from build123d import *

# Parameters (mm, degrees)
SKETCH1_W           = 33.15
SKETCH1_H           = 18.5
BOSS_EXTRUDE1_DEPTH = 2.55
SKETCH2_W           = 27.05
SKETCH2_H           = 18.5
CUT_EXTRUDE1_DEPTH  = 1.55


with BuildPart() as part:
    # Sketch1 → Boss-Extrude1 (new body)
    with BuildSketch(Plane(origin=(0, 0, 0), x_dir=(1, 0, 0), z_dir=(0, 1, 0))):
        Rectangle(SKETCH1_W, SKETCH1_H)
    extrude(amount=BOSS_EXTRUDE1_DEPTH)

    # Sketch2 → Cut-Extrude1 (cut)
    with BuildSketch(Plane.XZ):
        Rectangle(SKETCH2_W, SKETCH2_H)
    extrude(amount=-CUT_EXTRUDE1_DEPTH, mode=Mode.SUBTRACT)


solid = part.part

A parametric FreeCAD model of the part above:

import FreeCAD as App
import Part
import Sketcher
Q = App.Units.Quantity

doc = App.newDocument("Part")
body = doc.addObject("PartDesign::Body", "Body")

sketch1 = body.newObject("Sketcher::SketchObject", "Sketch")
sketch1.AttachmentSupport = (doc.getObject("XZ_Plane"), [""])
sketch1.MapMode = "FlatFace"
sketch1.addGeometry([
    Part.LineSegment(App.Vector(-17, -9, 0), App.Vector(-17, 9, 0)),
    Part.LineSegment(App.Vector(-17, 9, 0), App.Vector(17, 9, 0)),
    Part.LineSegment(App.Vector(17, 9, 0), App.Vector(17, -9, 0)),
    Part.LineSegment(App.Vector(17, -9, 0), App.Vector(-17, -9, 0)),
], False)
sketch1.addConstraint([
    Sketcher.Constraint("Coincident", 0, 2, 1, 1),
    Sketcher.Constraint("Coincident", 1, 2, 2, 1),
    Sketcher.Constraint("Coincident", 2, 2, 3, 1),
    Sketcher.Constraint("Coincident", 3, 2, 0, 1),
    Sketcher.Constraint("Vertical", 0),
    Sketcher.Constraint("Horizontal", 1),
    Sketcher.Constraint("Vertical", 2),
    Sketcher.Constraint("Horizontal", 3),
    Sketcher.Constraint("Symmetric", 0, 2, 2, 2, -1, 1),
    Sketcher.Constraint("DistanceY", 0, 1, 0, 2, Q("18.5 mm")),
    Sketcher.Constraint("DistanceX", 1, 1, 1, 2, Q("33.15 mm")),
])
pad1 = body.newObject("PartDesign::Pad", "Pad")
pad1.Profile = sketch1
pad1.Length = 2.55
pad1.Reversed = True

sketch2 = body.newObject("Sketcher::SketchObject", "Sketch001")
sketch2.AttachmentSupport = (doc.getObject("XZ_Plane"), [""])
sketch2.MapMode = "FlatFace"
sketch2.addGeometry([
    Part.LineSegment(App.Vector(-14, 9, 0), App.Vector(-14, -9, 0)),
    Part.LineSegment(App.Vector(-14, -9, 0), App.Vector(14, -9, 0)),
    Part.LineSegment(App.Vector(14, -9, 0), App.Vector(14, 9, 0)),
    Part.LineSegment(App.Vector(14, 9, 0), App.Vector(-14, 9, 0)),
], False)
sketch2.addConstraint([
    Sketcher.Constraint("Coincident", 0, 2, 1, 1),
    Sketcher.Constraint("Coincident", 1, 2, 2, 1),
    Sketcher.Constraint("Coincident", 2, 2, 3, 1),
    Sketcher.Constraint("Coincident", 3, 2, 0, 1),
    Sketcher.Constraint("Vertical", 0),
    Sketcher.Constraint("Horizontal", 1),
    Sketcher.Constraint("Vertical", 2),
    Sketcher.Constraint("Horizontal", 3),
    Sketcher.Constraint("Symmetric", 0, 2, 2, 2, -1, 1),
    Sketcher.Constraint("DistanceY", 0, 2, 0, 1, Q("18.5 mm")),
    Sketcher.Constraint("DistanceX", 1, 1, 1, 2, Q("27.05 mm")),
])
pocket1 = body.newObject("PartDesign::Pocket", "Pocket")
pocket1.Profile = sketch2
pocket1.Length = 1.55

doc.recompute()
